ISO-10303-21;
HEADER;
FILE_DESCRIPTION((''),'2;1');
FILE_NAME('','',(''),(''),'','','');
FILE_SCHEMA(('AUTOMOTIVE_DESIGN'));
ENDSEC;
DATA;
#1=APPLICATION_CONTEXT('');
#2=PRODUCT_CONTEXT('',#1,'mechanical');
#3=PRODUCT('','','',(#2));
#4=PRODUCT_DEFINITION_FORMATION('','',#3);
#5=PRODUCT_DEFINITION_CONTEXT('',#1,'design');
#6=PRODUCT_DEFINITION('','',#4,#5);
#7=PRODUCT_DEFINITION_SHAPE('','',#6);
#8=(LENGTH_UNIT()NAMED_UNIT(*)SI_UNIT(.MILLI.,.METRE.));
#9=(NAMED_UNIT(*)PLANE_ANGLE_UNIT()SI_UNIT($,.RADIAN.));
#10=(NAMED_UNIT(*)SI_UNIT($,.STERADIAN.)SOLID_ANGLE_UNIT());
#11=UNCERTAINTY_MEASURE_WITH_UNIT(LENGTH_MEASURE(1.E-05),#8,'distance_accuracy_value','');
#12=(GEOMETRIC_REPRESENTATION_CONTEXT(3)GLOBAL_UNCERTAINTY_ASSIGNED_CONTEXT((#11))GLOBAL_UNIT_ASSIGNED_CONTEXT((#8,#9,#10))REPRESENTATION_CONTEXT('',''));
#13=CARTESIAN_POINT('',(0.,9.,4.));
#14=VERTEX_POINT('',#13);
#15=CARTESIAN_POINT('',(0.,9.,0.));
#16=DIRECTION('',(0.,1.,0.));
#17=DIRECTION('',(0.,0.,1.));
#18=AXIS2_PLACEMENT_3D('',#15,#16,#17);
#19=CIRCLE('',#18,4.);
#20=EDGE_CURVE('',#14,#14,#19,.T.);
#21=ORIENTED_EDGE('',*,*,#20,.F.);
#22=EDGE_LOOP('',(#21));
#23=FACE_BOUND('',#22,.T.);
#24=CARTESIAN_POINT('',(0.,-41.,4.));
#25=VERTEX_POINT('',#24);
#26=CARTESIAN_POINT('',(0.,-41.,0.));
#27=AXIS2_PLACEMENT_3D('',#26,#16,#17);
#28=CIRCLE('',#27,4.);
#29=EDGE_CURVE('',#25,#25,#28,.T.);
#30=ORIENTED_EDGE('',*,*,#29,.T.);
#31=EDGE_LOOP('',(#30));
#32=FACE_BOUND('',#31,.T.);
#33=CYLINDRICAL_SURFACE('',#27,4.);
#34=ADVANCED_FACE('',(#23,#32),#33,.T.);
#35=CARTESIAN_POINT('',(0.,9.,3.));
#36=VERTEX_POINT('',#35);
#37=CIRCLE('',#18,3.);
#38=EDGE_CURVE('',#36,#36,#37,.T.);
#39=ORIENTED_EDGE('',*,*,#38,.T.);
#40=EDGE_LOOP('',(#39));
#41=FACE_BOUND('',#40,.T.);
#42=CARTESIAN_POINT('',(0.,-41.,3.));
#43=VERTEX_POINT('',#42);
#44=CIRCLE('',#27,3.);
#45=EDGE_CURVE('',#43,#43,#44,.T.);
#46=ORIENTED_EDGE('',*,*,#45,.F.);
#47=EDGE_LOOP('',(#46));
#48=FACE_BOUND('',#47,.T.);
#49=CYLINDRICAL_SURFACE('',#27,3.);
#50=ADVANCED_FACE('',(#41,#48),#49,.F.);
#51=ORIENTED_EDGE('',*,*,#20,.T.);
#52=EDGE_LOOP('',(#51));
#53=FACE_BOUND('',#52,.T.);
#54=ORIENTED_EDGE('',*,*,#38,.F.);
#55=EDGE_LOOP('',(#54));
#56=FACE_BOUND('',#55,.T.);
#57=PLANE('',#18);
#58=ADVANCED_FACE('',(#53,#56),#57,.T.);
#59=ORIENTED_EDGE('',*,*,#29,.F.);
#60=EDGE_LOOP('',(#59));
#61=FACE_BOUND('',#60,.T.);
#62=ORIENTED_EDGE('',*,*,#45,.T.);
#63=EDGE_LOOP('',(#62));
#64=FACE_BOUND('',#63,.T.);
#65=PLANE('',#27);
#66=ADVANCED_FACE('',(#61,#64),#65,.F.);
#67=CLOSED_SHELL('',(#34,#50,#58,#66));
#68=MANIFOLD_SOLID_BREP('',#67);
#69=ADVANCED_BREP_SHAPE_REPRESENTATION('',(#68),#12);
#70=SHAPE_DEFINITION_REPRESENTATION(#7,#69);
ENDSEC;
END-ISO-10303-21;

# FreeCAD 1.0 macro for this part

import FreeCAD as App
import Part
import Sketcher
from FreeCAD import Vector
Q = App.Units.Quantity

doc = App.newDocument("Part")
body = doc.addObject("PartDesign::Body", "Body")

# Sketch on XZ plane
sketch1 = doc.addObject("Sketcher::SketchObject", "Sketch")
body.addObject(sketch1)
sketch1.AttachmentSupport = (doc.XZ_Plane, [""])
sketch1.MapMode = "FlatFace"
sketch1.addGeometry(Part.Circle(Vector(0, 0, 0), Vector(0, 0, 1), 4), False)
sketch1.addGeometry(Part.Circle(Vector(0, 0, 0), Vector(0, 0, 1), 3), False)
sketch1.addConstraint(Sketcher.Constraint("Coincident", 0, 3, -1, 1))
sketch1.addConstraint(Sketcher.Constraint("Coincident", 1, 3, -1, 1))
sketch1.addConstraint(Sketcher.Constraint("Diameter", 0, Q("8 mm")))
sketch1.addConstraint(Sketcher.Constraint("Diameter", 1, Q("6 mm")))
pad1 = doc.addObject("PartDesign::Pad", "Pad")
body.addObject(pad1)
pad1.Profile = sketch1
pad1.Type = "TwoLengths"
pad1.Length = 9
pad1.Length2 = 41
pad1.Reversed = True

doc.recompute()
